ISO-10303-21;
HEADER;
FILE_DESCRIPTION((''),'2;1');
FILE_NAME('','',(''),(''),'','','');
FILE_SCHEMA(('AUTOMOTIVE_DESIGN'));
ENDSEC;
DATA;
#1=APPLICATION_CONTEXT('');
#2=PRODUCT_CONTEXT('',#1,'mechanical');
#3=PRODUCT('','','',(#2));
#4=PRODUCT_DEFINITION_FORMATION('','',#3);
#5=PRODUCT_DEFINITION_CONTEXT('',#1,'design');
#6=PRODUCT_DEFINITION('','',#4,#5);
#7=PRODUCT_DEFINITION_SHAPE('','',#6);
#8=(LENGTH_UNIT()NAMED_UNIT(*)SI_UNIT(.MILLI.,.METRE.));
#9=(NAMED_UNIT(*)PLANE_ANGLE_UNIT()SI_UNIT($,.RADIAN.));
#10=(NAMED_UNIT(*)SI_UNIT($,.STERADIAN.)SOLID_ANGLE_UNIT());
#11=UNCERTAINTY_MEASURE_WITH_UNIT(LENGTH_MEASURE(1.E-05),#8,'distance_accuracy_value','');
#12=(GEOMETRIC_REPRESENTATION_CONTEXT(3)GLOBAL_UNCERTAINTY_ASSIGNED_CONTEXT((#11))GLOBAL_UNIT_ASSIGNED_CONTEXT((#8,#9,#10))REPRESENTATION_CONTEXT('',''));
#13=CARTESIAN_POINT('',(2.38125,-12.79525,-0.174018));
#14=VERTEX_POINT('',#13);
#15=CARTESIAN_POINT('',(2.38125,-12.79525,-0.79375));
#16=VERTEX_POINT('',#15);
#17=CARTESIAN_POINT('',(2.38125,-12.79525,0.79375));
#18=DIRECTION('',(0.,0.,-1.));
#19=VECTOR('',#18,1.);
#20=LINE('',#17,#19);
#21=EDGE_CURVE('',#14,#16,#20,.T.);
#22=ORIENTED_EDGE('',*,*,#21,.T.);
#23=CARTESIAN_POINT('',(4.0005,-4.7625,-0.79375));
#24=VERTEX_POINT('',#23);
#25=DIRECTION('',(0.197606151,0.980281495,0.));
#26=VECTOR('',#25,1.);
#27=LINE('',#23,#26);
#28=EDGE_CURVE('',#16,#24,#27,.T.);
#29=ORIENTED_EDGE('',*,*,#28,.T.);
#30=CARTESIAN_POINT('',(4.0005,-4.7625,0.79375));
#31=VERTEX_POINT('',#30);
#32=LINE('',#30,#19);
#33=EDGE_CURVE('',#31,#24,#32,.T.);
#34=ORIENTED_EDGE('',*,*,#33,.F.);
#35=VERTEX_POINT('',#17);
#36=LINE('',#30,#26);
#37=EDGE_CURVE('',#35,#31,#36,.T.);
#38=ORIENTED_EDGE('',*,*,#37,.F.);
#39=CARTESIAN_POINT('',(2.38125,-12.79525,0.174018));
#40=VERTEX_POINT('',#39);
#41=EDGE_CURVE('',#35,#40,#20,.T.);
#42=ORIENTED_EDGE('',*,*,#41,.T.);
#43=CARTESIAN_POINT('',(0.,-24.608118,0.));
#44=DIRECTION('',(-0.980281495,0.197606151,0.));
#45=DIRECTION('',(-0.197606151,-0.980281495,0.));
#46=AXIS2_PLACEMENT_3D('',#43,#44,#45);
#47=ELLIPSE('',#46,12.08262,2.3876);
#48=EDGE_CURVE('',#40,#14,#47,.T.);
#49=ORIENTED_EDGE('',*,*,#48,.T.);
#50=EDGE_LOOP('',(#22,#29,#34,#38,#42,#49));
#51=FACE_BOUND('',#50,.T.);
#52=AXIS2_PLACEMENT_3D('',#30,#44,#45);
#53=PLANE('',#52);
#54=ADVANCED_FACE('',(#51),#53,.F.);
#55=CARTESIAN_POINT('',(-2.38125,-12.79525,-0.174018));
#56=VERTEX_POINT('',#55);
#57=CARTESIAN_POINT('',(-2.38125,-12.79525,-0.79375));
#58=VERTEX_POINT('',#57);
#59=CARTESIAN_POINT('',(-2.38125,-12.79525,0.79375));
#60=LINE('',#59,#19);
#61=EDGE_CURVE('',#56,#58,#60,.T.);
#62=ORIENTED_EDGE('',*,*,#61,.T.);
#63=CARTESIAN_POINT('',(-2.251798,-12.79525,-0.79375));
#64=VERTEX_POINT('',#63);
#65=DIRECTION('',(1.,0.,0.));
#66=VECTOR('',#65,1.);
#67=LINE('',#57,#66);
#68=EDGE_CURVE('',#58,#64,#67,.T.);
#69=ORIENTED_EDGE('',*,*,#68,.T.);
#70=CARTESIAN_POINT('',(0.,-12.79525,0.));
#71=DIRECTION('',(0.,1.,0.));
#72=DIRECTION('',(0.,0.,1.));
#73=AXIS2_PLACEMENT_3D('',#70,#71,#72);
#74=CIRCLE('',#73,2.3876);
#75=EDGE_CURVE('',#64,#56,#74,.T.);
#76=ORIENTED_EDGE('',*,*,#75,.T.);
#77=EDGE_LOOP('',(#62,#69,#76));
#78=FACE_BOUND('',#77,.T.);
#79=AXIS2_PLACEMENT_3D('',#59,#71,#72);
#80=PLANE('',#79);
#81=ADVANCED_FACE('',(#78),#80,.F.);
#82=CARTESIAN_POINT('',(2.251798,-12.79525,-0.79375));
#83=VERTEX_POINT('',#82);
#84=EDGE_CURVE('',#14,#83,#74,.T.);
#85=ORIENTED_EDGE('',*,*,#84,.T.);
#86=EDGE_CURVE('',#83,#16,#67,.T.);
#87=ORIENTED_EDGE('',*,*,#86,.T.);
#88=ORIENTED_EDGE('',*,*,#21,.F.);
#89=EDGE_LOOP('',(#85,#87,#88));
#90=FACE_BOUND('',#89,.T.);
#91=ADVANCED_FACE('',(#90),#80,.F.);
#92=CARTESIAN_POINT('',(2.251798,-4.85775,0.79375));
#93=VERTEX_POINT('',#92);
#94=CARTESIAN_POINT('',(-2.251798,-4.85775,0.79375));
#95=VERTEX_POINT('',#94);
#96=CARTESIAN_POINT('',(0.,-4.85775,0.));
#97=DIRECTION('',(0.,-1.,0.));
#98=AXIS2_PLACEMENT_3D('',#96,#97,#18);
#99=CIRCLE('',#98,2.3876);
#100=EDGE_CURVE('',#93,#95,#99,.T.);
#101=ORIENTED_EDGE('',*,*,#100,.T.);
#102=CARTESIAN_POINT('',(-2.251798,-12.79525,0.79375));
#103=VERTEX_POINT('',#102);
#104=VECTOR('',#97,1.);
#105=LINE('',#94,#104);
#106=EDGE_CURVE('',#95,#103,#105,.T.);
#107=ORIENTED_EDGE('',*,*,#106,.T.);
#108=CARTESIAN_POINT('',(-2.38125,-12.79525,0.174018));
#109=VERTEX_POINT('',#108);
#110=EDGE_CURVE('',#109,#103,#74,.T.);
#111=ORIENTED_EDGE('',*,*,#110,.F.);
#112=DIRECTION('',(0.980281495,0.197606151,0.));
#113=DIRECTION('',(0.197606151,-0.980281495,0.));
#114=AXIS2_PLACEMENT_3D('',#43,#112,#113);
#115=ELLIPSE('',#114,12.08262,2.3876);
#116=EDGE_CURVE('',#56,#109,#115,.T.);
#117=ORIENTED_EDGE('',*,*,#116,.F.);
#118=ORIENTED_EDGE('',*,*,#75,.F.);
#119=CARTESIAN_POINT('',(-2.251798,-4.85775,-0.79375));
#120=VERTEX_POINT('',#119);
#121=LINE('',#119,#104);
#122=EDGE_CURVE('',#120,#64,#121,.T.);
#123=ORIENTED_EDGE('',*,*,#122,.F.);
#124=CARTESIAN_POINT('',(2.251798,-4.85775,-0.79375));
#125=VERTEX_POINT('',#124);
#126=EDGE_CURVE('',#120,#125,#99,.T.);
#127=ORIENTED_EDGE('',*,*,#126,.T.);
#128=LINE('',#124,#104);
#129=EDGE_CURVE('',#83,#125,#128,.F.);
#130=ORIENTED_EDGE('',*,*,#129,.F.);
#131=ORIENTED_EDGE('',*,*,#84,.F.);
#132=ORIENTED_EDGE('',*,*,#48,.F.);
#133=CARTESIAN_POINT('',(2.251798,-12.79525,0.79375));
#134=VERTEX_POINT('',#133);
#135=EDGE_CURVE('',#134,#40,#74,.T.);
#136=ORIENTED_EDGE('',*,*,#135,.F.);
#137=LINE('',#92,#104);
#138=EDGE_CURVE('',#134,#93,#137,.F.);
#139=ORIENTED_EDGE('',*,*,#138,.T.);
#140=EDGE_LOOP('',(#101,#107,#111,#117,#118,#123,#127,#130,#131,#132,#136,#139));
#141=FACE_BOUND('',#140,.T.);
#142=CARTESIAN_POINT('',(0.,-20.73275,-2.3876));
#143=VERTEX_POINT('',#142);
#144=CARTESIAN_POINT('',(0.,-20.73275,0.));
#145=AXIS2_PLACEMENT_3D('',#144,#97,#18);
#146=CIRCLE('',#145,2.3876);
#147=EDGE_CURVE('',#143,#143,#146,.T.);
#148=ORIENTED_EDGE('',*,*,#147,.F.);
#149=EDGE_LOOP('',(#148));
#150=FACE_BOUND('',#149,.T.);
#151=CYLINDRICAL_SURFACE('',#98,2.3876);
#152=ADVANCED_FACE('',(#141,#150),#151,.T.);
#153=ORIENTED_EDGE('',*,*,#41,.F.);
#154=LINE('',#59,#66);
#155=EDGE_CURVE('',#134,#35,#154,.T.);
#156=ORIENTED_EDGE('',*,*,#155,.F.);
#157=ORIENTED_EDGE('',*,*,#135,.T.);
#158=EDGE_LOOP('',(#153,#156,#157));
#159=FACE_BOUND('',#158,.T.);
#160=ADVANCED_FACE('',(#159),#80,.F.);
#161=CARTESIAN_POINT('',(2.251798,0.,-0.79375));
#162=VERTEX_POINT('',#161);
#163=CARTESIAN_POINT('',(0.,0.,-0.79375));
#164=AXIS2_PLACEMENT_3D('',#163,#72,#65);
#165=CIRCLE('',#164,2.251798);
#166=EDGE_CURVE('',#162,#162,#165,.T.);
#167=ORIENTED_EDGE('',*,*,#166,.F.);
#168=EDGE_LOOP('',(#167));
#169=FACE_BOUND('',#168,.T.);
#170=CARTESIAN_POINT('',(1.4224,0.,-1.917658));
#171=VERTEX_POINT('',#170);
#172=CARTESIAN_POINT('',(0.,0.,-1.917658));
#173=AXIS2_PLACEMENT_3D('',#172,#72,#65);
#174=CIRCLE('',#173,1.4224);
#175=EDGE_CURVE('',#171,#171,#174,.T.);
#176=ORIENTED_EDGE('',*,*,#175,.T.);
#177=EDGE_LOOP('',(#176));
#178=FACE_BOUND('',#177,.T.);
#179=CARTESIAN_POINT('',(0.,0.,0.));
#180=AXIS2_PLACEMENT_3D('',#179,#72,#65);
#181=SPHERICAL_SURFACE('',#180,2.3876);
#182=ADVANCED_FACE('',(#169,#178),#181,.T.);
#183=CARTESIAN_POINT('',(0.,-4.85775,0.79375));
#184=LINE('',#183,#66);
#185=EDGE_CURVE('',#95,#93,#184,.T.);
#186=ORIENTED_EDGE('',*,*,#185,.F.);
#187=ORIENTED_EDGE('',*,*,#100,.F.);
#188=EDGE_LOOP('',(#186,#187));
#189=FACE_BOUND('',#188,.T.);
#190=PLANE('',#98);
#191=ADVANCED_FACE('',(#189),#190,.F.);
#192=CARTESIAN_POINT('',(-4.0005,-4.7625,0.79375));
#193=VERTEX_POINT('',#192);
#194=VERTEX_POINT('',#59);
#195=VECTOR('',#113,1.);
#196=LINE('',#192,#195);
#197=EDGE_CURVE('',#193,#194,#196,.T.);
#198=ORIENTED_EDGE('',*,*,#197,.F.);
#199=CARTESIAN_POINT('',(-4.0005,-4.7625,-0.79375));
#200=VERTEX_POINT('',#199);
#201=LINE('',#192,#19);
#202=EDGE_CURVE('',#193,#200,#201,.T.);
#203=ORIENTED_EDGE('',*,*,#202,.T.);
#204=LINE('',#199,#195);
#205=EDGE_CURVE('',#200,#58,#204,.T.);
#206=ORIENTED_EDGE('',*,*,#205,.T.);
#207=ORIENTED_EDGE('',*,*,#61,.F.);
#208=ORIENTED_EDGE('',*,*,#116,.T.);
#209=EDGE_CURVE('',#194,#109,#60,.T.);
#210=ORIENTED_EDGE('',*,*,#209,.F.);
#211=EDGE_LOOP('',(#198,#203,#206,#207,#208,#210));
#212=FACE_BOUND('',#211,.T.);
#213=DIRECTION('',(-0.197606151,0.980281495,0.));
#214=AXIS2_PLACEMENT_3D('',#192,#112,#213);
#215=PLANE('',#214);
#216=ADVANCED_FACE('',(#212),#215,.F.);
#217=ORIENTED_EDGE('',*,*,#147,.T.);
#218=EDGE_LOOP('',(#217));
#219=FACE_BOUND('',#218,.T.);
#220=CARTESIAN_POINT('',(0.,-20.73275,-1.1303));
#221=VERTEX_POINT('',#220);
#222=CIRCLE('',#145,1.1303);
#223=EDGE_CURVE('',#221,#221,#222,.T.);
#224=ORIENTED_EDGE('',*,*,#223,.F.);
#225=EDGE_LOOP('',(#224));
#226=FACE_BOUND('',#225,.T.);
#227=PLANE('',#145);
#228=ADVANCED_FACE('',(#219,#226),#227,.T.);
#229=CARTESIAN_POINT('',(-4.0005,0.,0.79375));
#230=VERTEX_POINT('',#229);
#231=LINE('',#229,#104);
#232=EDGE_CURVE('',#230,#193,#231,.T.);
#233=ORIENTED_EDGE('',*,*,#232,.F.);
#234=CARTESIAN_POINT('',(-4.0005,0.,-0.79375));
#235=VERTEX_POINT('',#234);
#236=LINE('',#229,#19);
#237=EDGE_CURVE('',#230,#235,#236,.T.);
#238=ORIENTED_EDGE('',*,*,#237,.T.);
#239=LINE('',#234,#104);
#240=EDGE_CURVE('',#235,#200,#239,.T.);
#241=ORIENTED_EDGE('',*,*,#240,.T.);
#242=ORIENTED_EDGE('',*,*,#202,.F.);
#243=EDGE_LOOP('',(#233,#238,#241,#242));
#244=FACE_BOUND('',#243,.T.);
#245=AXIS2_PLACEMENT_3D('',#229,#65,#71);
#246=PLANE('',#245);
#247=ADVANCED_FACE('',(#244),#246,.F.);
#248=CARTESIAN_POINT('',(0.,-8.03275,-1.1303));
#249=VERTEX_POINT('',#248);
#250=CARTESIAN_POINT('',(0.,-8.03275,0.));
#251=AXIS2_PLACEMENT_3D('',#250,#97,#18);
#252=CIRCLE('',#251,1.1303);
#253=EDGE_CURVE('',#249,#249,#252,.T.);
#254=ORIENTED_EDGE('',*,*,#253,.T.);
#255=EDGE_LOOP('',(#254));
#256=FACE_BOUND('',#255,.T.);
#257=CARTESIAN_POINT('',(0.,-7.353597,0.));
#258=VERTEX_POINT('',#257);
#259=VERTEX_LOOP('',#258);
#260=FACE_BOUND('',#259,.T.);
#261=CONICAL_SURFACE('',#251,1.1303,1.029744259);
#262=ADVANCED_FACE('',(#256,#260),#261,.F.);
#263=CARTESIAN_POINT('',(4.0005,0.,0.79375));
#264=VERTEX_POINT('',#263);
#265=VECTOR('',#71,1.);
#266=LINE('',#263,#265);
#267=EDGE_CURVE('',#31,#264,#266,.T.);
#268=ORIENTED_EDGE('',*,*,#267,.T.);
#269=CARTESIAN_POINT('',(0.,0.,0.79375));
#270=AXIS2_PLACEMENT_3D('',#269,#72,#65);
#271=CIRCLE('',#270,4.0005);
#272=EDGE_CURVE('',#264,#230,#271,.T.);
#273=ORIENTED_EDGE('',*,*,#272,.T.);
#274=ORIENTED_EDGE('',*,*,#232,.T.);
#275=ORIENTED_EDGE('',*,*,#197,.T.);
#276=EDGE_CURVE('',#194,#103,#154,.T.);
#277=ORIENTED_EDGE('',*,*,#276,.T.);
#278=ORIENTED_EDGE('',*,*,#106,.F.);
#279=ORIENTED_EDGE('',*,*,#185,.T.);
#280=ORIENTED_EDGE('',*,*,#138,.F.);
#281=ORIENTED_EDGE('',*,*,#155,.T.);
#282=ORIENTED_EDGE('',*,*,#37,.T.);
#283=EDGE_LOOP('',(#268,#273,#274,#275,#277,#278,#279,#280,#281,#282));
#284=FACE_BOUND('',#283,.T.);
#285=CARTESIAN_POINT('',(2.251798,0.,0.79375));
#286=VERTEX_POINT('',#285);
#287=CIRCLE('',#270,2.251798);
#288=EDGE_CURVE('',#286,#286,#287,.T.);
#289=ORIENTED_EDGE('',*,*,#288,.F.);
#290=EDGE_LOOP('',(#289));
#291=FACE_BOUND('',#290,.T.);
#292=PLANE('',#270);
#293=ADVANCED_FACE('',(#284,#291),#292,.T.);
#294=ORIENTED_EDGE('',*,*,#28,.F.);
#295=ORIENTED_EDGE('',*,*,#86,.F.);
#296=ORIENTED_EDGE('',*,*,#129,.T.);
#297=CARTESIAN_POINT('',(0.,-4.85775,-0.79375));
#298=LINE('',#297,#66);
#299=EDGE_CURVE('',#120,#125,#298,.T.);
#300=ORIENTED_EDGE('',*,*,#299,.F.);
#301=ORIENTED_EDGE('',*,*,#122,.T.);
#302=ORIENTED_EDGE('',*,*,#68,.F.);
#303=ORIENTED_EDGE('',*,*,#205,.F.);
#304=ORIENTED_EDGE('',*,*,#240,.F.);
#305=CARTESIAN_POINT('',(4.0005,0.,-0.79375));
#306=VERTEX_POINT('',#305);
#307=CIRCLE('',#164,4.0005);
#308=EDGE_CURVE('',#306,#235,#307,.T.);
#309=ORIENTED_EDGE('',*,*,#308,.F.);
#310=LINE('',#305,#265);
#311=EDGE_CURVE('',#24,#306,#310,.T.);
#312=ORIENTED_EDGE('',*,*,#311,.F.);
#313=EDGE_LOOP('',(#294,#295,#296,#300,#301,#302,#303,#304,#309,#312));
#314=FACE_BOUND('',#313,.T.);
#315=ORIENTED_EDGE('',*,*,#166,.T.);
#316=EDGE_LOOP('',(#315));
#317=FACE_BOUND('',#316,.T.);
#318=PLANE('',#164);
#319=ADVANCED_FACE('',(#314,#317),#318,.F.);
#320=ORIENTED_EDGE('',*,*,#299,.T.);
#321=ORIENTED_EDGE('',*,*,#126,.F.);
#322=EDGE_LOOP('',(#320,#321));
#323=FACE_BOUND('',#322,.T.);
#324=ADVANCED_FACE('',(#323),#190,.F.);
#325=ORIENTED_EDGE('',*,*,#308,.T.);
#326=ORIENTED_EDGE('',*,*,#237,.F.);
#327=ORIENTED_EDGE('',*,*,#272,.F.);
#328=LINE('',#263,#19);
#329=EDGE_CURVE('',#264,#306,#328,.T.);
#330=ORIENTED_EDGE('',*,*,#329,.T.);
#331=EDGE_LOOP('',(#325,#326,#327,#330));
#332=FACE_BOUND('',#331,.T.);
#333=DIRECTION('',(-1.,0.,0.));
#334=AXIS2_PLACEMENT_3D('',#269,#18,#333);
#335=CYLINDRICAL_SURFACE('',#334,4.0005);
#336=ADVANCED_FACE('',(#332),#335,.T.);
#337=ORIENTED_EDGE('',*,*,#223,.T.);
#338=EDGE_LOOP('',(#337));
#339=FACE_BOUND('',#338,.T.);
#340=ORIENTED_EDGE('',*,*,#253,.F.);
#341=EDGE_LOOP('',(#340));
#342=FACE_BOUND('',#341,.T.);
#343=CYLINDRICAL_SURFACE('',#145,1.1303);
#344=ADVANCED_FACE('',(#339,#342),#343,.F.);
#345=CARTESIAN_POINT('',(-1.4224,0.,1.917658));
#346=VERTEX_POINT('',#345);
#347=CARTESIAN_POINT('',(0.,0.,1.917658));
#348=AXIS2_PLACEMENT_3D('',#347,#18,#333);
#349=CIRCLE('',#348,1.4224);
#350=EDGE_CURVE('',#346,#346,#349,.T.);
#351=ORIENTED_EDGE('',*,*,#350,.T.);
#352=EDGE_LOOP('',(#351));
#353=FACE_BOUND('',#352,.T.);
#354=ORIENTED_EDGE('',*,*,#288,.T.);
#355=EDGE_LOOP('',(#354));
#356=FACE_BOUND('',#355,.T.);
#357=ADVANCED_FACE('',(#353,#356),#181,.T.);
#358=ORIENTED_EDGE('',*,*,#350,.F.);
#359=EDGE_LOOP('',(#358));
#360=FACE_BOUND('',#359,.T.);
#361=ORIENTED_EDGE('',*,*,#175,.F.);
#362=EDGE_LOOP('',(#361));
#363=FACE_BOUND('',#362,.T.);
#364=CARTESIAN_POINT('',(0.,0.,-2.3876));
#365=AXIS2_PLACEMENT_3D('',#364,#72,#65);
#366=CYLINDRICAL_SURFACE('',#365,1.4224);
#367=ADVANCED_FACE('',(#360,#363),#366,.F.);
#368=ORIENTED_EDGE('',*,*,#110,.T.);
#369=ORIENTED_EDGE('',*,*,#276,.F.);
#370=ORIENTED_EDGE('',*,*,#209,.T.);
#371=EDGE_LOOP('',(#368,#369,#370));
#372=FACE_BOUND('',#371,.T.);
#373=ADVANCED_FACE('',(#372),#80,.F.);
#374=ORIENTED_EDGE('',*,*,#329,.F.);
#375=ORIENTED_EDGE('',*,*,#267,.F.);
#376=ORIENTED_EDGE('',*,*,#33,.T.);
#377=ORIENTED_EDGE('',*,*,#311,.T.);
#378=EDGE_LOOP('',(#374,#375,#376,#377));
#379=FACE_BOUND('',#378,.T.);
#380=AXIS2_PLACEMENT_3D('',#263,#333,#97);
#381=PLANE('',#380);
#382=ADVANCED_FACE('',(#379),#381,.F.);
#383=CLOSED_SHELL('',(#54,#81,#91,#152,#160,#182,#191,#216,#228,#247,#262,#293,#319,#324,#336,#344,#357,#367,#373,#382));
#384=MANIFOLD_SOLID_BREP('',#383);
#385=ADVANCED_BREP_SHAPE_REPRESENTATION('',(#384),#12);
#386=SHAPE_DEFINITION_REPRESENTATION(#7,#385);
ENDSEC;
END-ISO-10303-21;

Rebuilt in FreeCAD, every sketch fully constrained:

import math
import FreeCAD as App
import Part
import Sketcher

V = App.Vector
Q = App.Units.Quantity

doc = App.newDocument("Part")
params = doc.addObject("Spreadsheet::Sheet", "Params")
for row, (alias, value) in enumerate([
    ("sketch1_radius", "0.094 in"),
    ("revolution_angle", "360 deg"),
    ("sketch2_diameter", "0.112 in"),
    ("sketch3_diameter", "0.112 in"),
    ("sketch3_width", "0.1875 in"),
    ("pad1_length", "0.0625 in"),
    ("sketch4_diameter", "0.188 in"),
    ("pad2_length", "0.625 in"),
    ("sketch5_diameter", "0.089 in"),
    ("hole_diameter", "0.089 in"),
    ("hole_depth", "0.5 in"),
], start=1):
    params.set(f"A{row}", alias)
    params.set(f"B{row}", "=" + value)
    params.setAlias(f"B{row}", alias)

body = doc.addObject("PartDesign::Body", "Body")

sketch1 = doc.addObject("Sketcher::SketchObject", "Sketch")
body.addObject(sketch1)
sketch1.AttachmentSupport = (doc.XY_Plane, [""])
sketch1.MapMode = "FlatFace"
sketch1.addGeometry([
    Part.LineSegment(V(0, 2.4, 0), V(0, -2.4, 0)),
    Part.ArcOfCircle(Part.Circle(V(0, 0, 0), V(0, 0, 1), 2.4), math.radians(-90), math.radians(90)),
], False)
sketch1.addConstraint([
    Sketcher.Constraint("Coincident", 0, 1, 1, 2),
    Sketcher.Constraint("Coincident", 1, 1, 0, 2),
    Sketcher.Constraint("Vertical", 0),
    Sketcher.Constraint("Coincident", 1, 3, -1, 1),
    Sketcher.Constraint("PointOnObject", 0, 1, -2),
    Sketcher.Constraint("Radius", 1, Q("0.094 in")),
])
sketch1.setExpression("Constraints[5]", "Params.sketch1_radius")
revolution = doc.addObject("PartDesign::Revolution", "Revolution")
body.addObject(revolution)
revolution.Profile = sketch1
revolution.ReferenceAxis = (sketch1, ["V_Axis"])
revolution.setExpression("Angle", "Params.revolution_angle")

sketch2 = doc.addObject("Sketcher::SketchObject", "Sketch001")
body.addObject(sketch2)
sketch2.AttachmentSupport = (doc.XY_Plane, [""])
sketch2.MapMode = "FlatFace"
sketch2.addGeometry(Part.Circle(V(0, 0, 0), V(0, 0, 1), 1.4), False)
sketch2.addConstraint([
    Sketcher.Constraint("Coincident", 0, 3, -1, 1),
    Sketcher.Constraint("Diameter", 0, Q("0.112 in")),
])
sketch2.setExpression("Constraints[1]", "Params.sketch2_diameter")
pocket1 = doc.addObject("PartDesign::Pocket", "Pocket")
body.addObject(pocket1)
pocket1.Profile = sketch2
pocket1.Type = "ThroughAll"
pocket1.Midplane = True

sketch3 = doc.addObject("Sketcher::SketchObject", "Sketch002")
body.addObject(sketch3)
sketch3.AttachmentSupport = (doc.XY_Plane, [""])
sketch3.MapMode = "FlatFace"
sketch3.addGeometry([
    Part.LineSegment(V(-4, 0, 0), V(-4, -4.8, 0)),
    Part.LineSegment(V(-4, -4.8, 0), V(-2.4, -12.8, 0)),
    Part.LineSegment(V(-2.4, -12.8, 0), V(2.4, -12.8, 0)),
    Part.LineSegment(V(2.4, -12.8, 0), V(4, -4.8, 0)),
    Part.LineSegment(V(4, -4.8, 0), V(4, 0, 0)),
    Part.ArcOfCircle(Part.Circle(V(0, 0, 0), V(0, 0, 1), 4), math.radians(0), math.radians(180)),
    Part.Circle(V(0, 0, 0), V(0, 0, 1), 1.4),
], False)
sketch3.addConstraint([
    Sketcher.Constraint("Coincident", 0, 2, 1, 1),
    Sketcher.Constraint("Coincident", 1, 2, 2, 1),
    Sketcher.Constraint("Coincident", 2, 2, 3, 1),
    Sketcher.Constraint("Coincident", 3, 2, 4, 1),
    Sketcher.Constraint("Tangent", 4, 2, 5, 1),
    Sketcher.Constraint("Tangent", 5, 2, 0, 1),
    Sketcher.Constraint("Vertical", 0),
    Sketcher.Constraint("Horizontal", 2),
    Sketcher.Constraint("Vertical", 4),
    Sketcher.Constraint("Coincident", 5, 3, -1, 1),
    Sketcher.Constraint("Coincident", 6, 3, -1, 1),
    Sketcher.Constraint("Horizontal", 0, 2, 3, 2),
    Sketcher.Constraint("Equal", 2, 0),
    Sketcher.Constraint("Equal", 1, 3),
    Sketcher.Constraint("Diameter", 6, Q("0.112 in")),
    Sketcher.Constraint("Radius", 5, Q("0.1575 in")),
    Sketcher.Constraint("DistanceX", 2, 1, 2, 2, Q("0.1875 in")),
    Sketcher.Constraint("Distance", 1, 8.19433),
])
sketch3.setExpression("Constraints[14]", "Params.sketch3_diameter")
sketch3.setExpression("Constraints[16]", "Params.sketch3_width")
pad1 = doc.addObject("PartDesign::Pad", "Pad")
body.addObject(pad1)
pad1.Profile = sketch3
pad1.setExpression("Length", "Params.pad1_length")
pad1.Midplane = True

sketch4 = doc.addObject("Sketcher::SketchObject", "Sketch003")
body.addObject(sketch4)
sketch4.AttachmentSupport = (doc.XZ_Plane, [""])
sketch4.MapMode = "FlatFace"
sketch4.AttachmentOffset = App.Placement(V(0, 0, 12.79525), App.Rotation())
sketch4.addGeometry(Part.Circle(V(0, 0, 0), V(0, 0, 1), 2.4), False)
sketch4.addConstraint([
    Sketcher.Constraint("Coincident", 0, 3, -1, 1),
    Sketcher.Constraint("Diameter", 0, Q("0.188 in")),
])
sketch4.setExpression("Constraints[1]", "Params.sketch4_diameter")
pad2 = doc.addObject("PartDesign::Pad", "Pad001")
body.addObject(pad2)
pad2.Profile = sketch4
pad2.setExpression("Length", "Params.pad2_length")
pad2.Midplane = True

sketch5 = doc.addObject("Sketcher::SketchObject", "Sketch004")
body.addObject(sketch5)
sketch5.AttachmentSupport = (doc.XZ_Plane, [""])
sketch5.MapMode = "FlatFace"
sketch5.AttachmentOffset = App.Placement(V(0, 0, 20.73275), App.Rotation())
sketch5.addGeometry(Part.Circle(V(0, 0, 0), V(0, 0, 1), 1.1), False)
sketch5.addConstraint([
    Sketcher.Constraint("Coincident", 0, 3, -1, 1),
    Sketcher.Constraint("Diameter", 0, Q("0.089 in")),
])
sketch5.setExpression("Constraints[1]", "Params.sketch5_diameter")
doc.recompute()
hole = doc.addObject("PartDesign::Hole", "Hole")
body.addObject(hole)
hole.Profile = sketch5
hole.ThreadType = "None"
hole.setExpression("Diameter", "Params.hole_diameter")
hole.DepthType = "Dimension"
hole.setExpression("Depth", "Params.hole_depth")
hole.DrillPoint = "Angled"
hole.DrillPointAngle = 118

doc.recompute()
